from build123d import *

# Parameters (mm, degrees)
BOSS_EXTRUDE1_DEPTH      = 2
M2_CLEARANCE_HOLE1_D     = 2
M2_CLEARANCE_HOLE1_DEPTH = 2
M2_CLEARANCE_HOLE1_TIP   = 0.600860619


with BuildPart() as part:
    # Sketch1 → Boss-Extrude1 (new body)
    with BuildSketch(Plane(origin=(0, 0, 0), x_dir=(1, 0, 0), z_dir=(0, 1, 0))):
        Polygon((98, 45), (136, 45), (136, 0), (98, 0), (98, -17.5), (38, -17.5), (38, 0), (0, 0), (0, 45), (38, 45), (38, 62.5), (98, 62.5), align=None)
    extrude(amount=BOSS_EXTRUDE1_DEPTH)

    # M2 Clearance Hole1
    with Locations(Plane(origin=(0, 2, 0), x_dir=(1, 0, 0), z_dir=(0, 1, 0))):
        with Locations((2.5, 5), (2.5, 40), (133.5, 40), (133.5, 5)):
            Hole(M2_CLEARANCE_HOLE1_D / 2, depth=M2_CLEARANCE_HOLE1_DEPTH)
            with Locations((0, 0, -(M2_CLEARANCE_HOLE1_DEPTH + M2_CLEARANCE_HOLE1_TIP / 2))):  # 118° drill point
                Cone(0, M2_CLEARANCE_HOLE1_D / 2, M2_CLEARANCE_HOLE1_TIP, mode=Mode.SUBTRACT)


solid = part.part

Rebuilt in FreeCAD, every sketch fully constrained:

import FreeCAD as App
import Part
import Sketcher

V = App.Vector
Q = App.Units.Quantity

doc = App.newDocument("Part")
params = doc.addObject("Spreadsheet::Sheet", "Params")
for row, (alias, value) in enumerate([
    ("sketch1_width", "38 mm"),
    ("sketch1_width2", "60 mm"),
    ("sketch1_height", "45 mm"),
    ("sketch1_height2", "17.5 mm"),
    ("pad1_length", "2 mm"),
    ("sketch2_diameter", "2 mm"),
    ("hole_diameter", "2 mm"),
    ("hole_depth", "2 mm"),
], start=1):
    params.set(f"A{row}", alias)
    params.set(f"B{row}", "=" + value)
    params.setAlias(f"B{row}", alias)

body = doc.addObject("PartDesign::Body", "Body")

# Sketch on XZ plane
sketch1 = doc.addObject("Sketcher::SketchObject", "Sketch")
body.addObject(sketch1)
sketch1.AttachmentSupport = (doc.XZ_Plane, [""])
sketch1.MapMode = "FlatFace"
sketch1.addGeometry([
    Part.LineSegment(V(136, -45, 0), V(98, -45, 0)),  # 0
    Part.LineSegment(V(98, -45, 0), V(98, -62, 0)),  # 1
    Part.LineSegment(V(98, -62, 0), V(38, -62, 0)),  # 2
    Part.LineSegment(V(38, -62, 0), V(38, -45, 0)),  # 3
    Part.LineSegment(V(38, -45, 0), V(0, -45, 0)),  # 4
    Part.LineSegment(V(0, -45, 0), V(0, 0, 0)),  # 5
    Part.LineSegment(V(0, 0, 0), V(38, 0, 0)),  # 6
    Part.LineSegment(V(38, 0, 0), V(38, 18, 0)),  # 7
    Part.LineSegment(V(38, 18, 0), V(98, 18, 0)),  # 8
    Part.LineSegment(V(98, 18, 0), V(98, 0, 0)),  # 9
    Part.LineSegment(V(98, 0, 0), V(136, 0, 0)),  # 10
    Part.LineSegment(V(136, 0, 0), V(136, -45, 0)),  # 11
], False)
sketch1.addConstraint([
    Sketcher.Constraint("Coincident", 0, 2, 1, 1),
    Sketcher.Constraint("Coincident", 1, 2, 2, 1),
    Sketcher.Constraint("Coincident", 2, 2, 3, 1),
    Sketcher.Constraint("Coincident", 3, 2, 4, 1),
    Sketcher.Constraint("Coincident", 4, 2, 5, 1),
    Sketcher.Constraint("Coincident", 5, 2, 6, 1),
    Sketcher.Constraint("Coincident", 6, 2, 7, 1),
    Sketcher.Constraint("Coincident", 7, 2, 8, 1),
    Sketcher.Constraint("Coincident", 8, 2, 9, 1),
    Sketcher.Constraint("Coincident", 9, 2, 10, 1),
    Sketcher.Constraint("Coincident", 10, 2, 11, 1),
    Sketcher.Constraint("Coincident", 11, 2, 0, 1),
    Sketcher.Constraint("Horizontal", 0),
    Sketcher.Constraint("Vertical", 1),
    Sketcher.Constraint("Horizontal", 2),
    Sketcher.Constraint("Vertical", 3),
    Sketcher.Constraint("Horizontal", 4),
    Sketcher.Constraint("Vertical", 5),
    Sketcher.Constraint("Horizontal", 6),
    Sketcher.Constraint("Vertical", 7),
    Sketcher.Constraint("Horizontal", 8),
    Sketcher.Constraint("Vertical", 9),
    Sketcher.Constraint("Horizontal", 10),
    Sketcher.Constraint("Vertical", 11),
    Sketcher.Constraint("Coincident", 5, 2, -1, 1),
    Sketcher.Constraint("PointOnObject", 9, 2, -1),
    Sketcher.Constraint("Horizontal", 0, 2, 3, 2),
    Sketcher.Constraint("Vertical", 3, 2, 6, 2),
    Sketcher.Constraint("Vertical", 1, 2, 8, 2),
    Sketcher.Constraint("Equal", 0, 4),
    Sketcher.Constraint("Equal", 3, 7),
    Sketcher.Constraint("DistanceX", 0, 2, 0, 1, Q("38 mm")),
    Sketcher.Constraint("DistanceX", 2, 2, 2, 1, Q("60 mm")),
    Sketcher.Constraint("DistanceY", 5, 1, 5, 2, Q("45 mm")),
    Sketcher.Constraint("DistanceY", 1, 2, 1, 1, Q("17.5 mm")),
])
sketch1.setExpression("Constraints[31]", "Params.sketch1_width")
sketch1.setExpression("Constraints[32]", "Params.sketch1_width2")
sketch1.setExpression("Constraints[33]", "Params.sketch1_height")
sketch1.setExpression("Constraints[34]", "Params.sketch1_height2")
pad1 = doc.addObject("PartDesign::Pad", "Pad")
body.addObject(pad1)
pad1.Profile = sketch1
pad1.setExpression("Length", "Params.pad1_length")
pad1.Reversed = True

# Sketch on XZ plane
sketch2 = doc.addObject("Sketcher::SketchObject", "Sketch001")
body.addObject(sketch2)
sketch2.AttachmentSupport = (doc.XZ_Plane, [""])
sketch2.MapMode = "FlatFace"
sketch2.AttachmentOffset = App.Placement(V(0, 0, -2), App.Rotation())
sketch2.addGeometry([
    Part.Circle(V(2.5, -5, 0), V(0, 0, 1), 1),
    Part.Circle(V(2.5, -40, 0), V(0, 0, 1), 1),
    Part.Circle(V(133.5, -40, 0), V(0, 0, 1), 1),
    Part.Circle(V(133.5, -5, 0), V(0, 0, 1), 1),
], False)
sketch2.addConstraint([
    Sketcher.Constraint("Equal", 0, 1),
    Sketcher.Constraint("Equal", 1, 2),
    Sketcher.Constraint("Equal", 2, 3),
    Sketcher.Constraint("Horizontal", 1, 3, 2, 3),
    Sketcher.Constraint("Horizontal", 0, 3, 3, 3),
    Sketcher.Constraint("Vertical", 0, 3, 1, 3),
    Sketcher.Constraint("Vertical", 2, 3, 3, 3),
    Sketcher.Constraint("Diameter", 0, Q("2 mm")),
    Sketcher.Constraint("DistanceY", 0, 3, -1, 1, Q("5 mm")),
    Sketcher.Constraint("DistanceY", 1, 3, -1, 1, Q("40 mm")),
    Sketcher.Constraint("DistanceX", 1, 3, 2, 3, Q("131 mm")),
    Sketcher.Constraint("DistanceX", -1, 1, 0, 3, Q("2.5 mm")),
])
sketch2.setExpression("Constraints[7]", "Params.sketch2_diameter")
doc.recompute()
hole = doc.addObject("PartDesign::Hole", "Hole")
body.addObject(hole)
hole.Profile = sketch2
hole.ThreadType = "None"
hole.setExpression("Diameter", "Params.hole_diameter")
hole.DepthType = "Dimension"
hole.setExpression("Depth", "Params.hole_depth")
hole.DrillPoint = "Angled"
hole.DrillPointAngle = 118
hole.Reversed = True

doc.recompute()
